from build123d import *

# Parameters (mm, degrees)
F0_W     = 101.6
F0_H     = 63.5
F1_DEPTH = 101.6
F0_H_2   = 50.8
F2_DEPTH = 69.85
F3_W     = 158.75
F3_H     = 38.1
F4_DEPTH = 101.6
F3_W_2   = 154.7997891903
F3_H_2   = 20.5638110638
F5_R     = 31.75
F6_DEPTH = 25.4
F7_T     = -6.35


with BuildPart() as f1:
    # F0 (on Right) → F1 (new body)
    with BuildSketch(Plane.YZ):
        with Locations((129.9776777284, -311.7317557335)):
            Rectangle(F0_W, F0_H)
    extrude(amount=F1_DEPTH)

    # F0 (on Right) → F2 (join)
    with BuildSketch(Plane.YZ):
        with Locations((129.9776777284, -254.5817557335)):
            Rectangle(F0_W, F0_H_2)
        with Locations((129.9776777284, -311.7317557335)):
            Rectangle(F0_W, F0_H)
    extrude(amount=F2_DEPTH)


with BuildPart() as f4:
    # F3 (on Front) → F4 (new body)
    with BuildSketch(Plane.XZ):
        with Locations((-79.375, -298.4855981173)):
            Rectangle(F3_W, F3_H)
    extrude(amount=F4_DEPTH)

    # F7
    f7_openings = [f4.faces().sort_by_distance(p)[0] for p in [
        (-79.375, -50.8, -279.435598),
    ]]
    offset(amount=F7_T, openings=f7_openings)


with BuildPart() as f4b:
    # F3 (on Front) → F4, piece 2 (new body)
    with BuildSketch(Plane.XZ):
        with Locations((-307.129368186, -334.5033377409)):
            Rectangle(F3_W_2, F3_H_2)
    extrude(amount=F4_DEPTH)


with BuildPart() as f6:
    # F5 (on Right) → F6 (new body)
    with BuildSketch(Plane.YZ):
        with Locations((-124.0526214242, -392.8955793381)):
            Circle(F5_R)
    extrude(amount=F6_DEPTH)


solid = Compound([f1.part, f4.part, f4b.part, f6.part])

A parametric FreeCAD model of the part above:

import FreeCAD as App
import Part
import Sketcher
from FreeCAD import Vector
Q = App.Units.Quantity


def faces_at(feature, points):
    """Names of the faces that lie closest to the given points."""
    faces = feature.Shape.Faces
    near = lambda p: min(range(len(faces)), key=lambda i: faces[i].distToShape(Part.Vertex(*p))[0])
    return sorted({f"Face{near(p) + 1}" for p in points})

doc = App.newDocument("Part")
body = doc.addObject("PartDesign::Body", "Body")

# Sketch on YZ plane
sketch1 = body.newObject("Sketcher::SketchObject", "Sketch")
sketch1.AttachmentSupport = (doc.getObject("YZ_Plane"), [""])
sketch1.MapMode = "FlatFace"
sketch1.addGeometry(Part.LineSegment(Vector(79.177678, -279.981756, 0), Vector(79.177678, -343.481756, 0)), False)
sketch1.addGeometry(Part.LineSegment(Vector(79.177678, -343.481756, 0), Vector(180.777678, -343.481756, 0)), False)
sketch1.addGeometry(Part.LineSegment(Vector(180.777678, -343.481756, 0), Vector(180.777678, -279.981756, 0)), False)
sketch1.addGeometry(Part.LineSegment(Vector(180.777678, -279.981756, 0), Vector(79.177678, -279.981756, 0)), False)
sketch1.addConstraint(Sketcher.Constraint("Coincident", 0, 2, 1, 1))
sketch1.addConstraint(Sketcher.Constraint("Coincident", 1, 2, 2, 1))
sketch1.addConstraint(Sketcher.Constraint("Coincident", 2, 2, 3, 1))
sketch1.addConstraint(Sketcher.Constraint("Coincident", 3, 2, 0, 1))
sketch1.addConstraint(Sketcher.Constraint("Vertical", 0))
sketch1.addConstraint(Sketcher.Constraint("Horizontal", 1))
sketch1.addConstraint(Sketcher.Constraint("Vertical", 2))
sketch1.addConstraint(Sketcher.Constraint("Horizontal", 3))
sketch1.addConstraint(Sketcher.Constraint("DistanceX", 1, 1, 1, 2, Q("4 in")))
sketch1.addConstraint(Sketcher.Constraint("DistanceY", 0, 2, 0, 1, Q("2.5 in")))
sketch1.addConstraint(Sketcher.Constraint("DistanceX", -1, 1, 0, 2, 79.177678))
sketch1.addConstraint(Sketcher.Constraint("DistanceY", 0, 2, -1, 1, 343.481756))
pad1 = body.newObject("PartDesign::Pad", "Pad")
pad1.Profile = sketch1
pad1.Length = Q("4 in")

# Sketch on YZ plane
sketch2 = body.newObject("Sketcher::SketchObject", "Sketch001")
sketch2.AttachmentSupport = (doc.getObject("YZ_Plane"), [""])
sketch2.MapMode = "FlatFace"
sketch2.addGeometry(Part.LineSegment(Vector(79.177678, -229.181756, 0), Vector(79.177678, -343.481756, 0)), False)
sketch2.addGeometry(Part.LineSegment(Vector(79.177678, -343.481756, 0), Vector(180.777678, -343.481756, 0)), False)
sketch2.addGeometry(Part.LineSegment(Vector(180.777678, -343.481756, 0), Vector(180.777678, -229.181756, 0)), False)
sketch2.addGeometry(Part.LineSegment(Vector(180.777678, -229.181756, 0), Vector(79.177678, -229.181756, 0)), False)
sketch2.addConstraint(Sketcher.Constraint("Coincident", 0, 2, 1, 1))
sketch2.addConstraint(Sketcher.Constraint("Coincident", 1, 2, 2, 1))
sketch2.addConstraint(Sketcher.Constraint("Coincident", 2, 2, 3, 1))
sketch2.addConstraint(Sketcher.Constraint("Coincident", 3, 2, 0, 1))
sketch2.addConstraint(Sketcher.Constraint("Vertical", 0))
sketch2.addConstraint(Sketcher.Constraint("Horizontal", 1))
sketch2.addConstraint(Sketcher.Constraint("Vertical", 2))
sketch2.addConstraint(Sketcher.Constraint("Horizontal", 3))
sketch2.addConstraint(Sketcher.Constraint("DistanceX", 1, 1, 1, 2, Q("4 in")))
sketch2.addConstraint(Sketcher.Constraint("DistanceY", 0, 2, 0, 1, Q("4.5 in")))
sketch2.addConstraint(Sketcher.Constraint("DistanceX", -1, 1, 0, 2, 79.177678))
sketch2.addConstraint(Sketcher.Constraint("DistanceY", 0, 2, -1, 1, 343.481756))
pad2 = body.newObject("PartDesign::Pad", "Pad001")
pad2.Profile = sketch2
pad2.Length = Q("2.75 in")
body2 = doc.addObject("PartDesign::Body", "Body001")

# Sketch on XZ plane
sketch3 = body2.newObject("Sketcher::SketchObject", "Sketch002")
sketch3.AttachmentSupport = (doc.getObject("XZ_Plane001"), [""])
sketch3.MapMode = "FlatFace"
sketch3.addGeometry(Part.LineSegment(Vector(-158.75, -279.435598, 0), Vector(-158.75, -317.535598, 0)), False)
sketch3.addGeometry(Part.LineSegment(Vector(-158.75, -317.535598, 0), Vector(0, -317.535598, 0)), False)
sketch3.addGeometry(Part.LineSegment(Vector(0, -317.535598, 0), Vector(0, -279.435598, 0)), False)
sketch3.addGeometry(Part.LineSegment(Vector(0, -279.435598, 0), Vector(-158.75, -279.435598, 0)), False)
sketch3.addConstraint(Sketcher.Constraint("Coincident", 0, 2, 1, 1))
sketch3.addConstraint(Sketcher.Constraint("Coincident", 1, 2, 2, 1))
sketch3.addConstraint(Sketcher.Constraint("Coincident", 2, 2, 3, 1))
sketch3.addConstraint(Sketcher.Constraint("Coincident", 3, 2, 0, 1))
sketch3.addConstraint(Sketcher.Constraint("Vertical", 0))
sketch3.addConstraint(Sketcher.Constraint("Horizontal", 1))
sketch3.addConstraint(Sketcher.Constraint("Vertical", 2))
sketch3.addConstraint(Sketcher.Constraint("Horizontal", 3))
sketch3.addConstraint(Sketcher.Constraint("PointOnObject", 1, 2, -2))
sketch3.addConstraint(Sketcher.Constraint("DistanceY", 0, 2, 0, 1, Q("1.5 in")))
sketch3.addConstraint(Sketcher.Constraint("DistanceX", 1, 1, 1, 2, Q("6.25 in")))
sketch3.addConstraint(Sketcher.Constraint("DistanceY", 0, 2, -1, 1, 317.535598))
pad3 = body2.newObject("PartDesign::Pad", "Pad002")
pad3.Profile = sketch3
pad3.Length = Q("4 in")
doc.recompute()

thickness = body2.newObject("PartDesign::Thickness", "Thickness")
thickness.Base = (pad3, faces_at(pad3, [(-79.375, -50.8, -279.436)]))
thickness.Value = Q("0.25 in")
thickness.Reversed = True
thickness.Join = "Arc"
body3 = doc.addObject("PartDesign::Body", "Body002")

# Sketch on XZ plane
sketch4 = body3.newObject("Sketcher::SketchObject", "Sketch003")
sketch4.AttachmentSupport = (doc.getObject("XZ_Plane002"), [""])
sketch4.MapMode = "FlatFace"
sketch4.addGeometry(Part.LineSegment(Vector(-384.529263, -324.221432, 0), Vector(-384.529263, -344.785243, 0)), False)
sketch4.addGeometry(Part.LineSegment(Vector(-384.529263, -344.785243, 0), Vector(-229.729474, -344.785243, 0)), False)
sketch4.addGeometry(Part.LineSegment(Vector(-229.729474, -344.785243, 0), Vector(-229.729474, -324.221432, 0)), False)
sketch4.addGeometry(Part.LineSegment(Vector(-229.729474, -324.221432, 0), Vector(-384.529263, -324.221432, 0)), False)
sketch4.addConstraint(Sketcher.Constraint("Coincident", 0, 2, 1, 1))
sketch4.addConstraint(Sketcher.Constraint("Coincident", 1, 2, 2, 1))
sketch4.addConstraint(Sketcher.Constraint("Coincident", 2, 2, 3, 1))
sketch4.addConstraint(Sketcher.Constraint("Coincident", 3, 2, 0, 1))
sketch4.addConstraint(Sketcher.Constraint("Vertical", 0))
sketch4.addConstraint(Sketcher.Constraint("Horizontal", 1))
sketch4.addConstraint(Sketcher.Constraint("Vertical", 2))
sketch4.addConstraint(Sketcher.Constraint("Horizontal", 3))
sketch4.addConstraint(Sketcher.Constraint("DistanceX", 1, 1, 1, 2, 154.799789))
sketch4.addConstraint(Sketcher.Constraint("DistanceY", 0, 2, 0, 1, 20.563811))
sketch4.addConstraint(Sketcher.Constraint("DistanceX", 0, 2, -1, 1, 384.529263))
sketch4.addConstraint(Sketcher.Constraint("DistanceY", 0, 2, -1, 1, 344.785243))
pad4 = body3.newObject("PartDesign::Pad", "Pad003")
pad4.Profile = sketch4
pad4.Length = Q("4 in")
body4 = doc.addObject("PartDesign::Body", "Body003")

# Sketch on YZ plane
sketch5 = body4.newObject("Sketcher::SketchObject", "Sketch004")
sketch5.AttachmentSupport = (doc.getObject("YZ_Plane003"), [""])
sketch5.MapMode = "FlatFace"
sketch5.addGeometry(Part.Circle(Vector(-124.052621, -392.895579, 0), Vector(0, 0, 1), 31.75), False)
sketch5.addConstraint(Sketcher.Constraint("Diameter", 0, Q("2.5 in")))
sketch5.addConstraint(Sketcher.Constraint("DistanceX", 0, 3, -1, 1, 124.052621))
sketch5.addConstraint(Sketcher.Constraint("DistanceY", 0, 3, -1, 1, 392.895579))
pad5 = body4.newObject("PartDesign::Pad", "Pad004")
pad5.Profile = sketch5
pad5.Length = Q("1 in")

doc.recompute()
